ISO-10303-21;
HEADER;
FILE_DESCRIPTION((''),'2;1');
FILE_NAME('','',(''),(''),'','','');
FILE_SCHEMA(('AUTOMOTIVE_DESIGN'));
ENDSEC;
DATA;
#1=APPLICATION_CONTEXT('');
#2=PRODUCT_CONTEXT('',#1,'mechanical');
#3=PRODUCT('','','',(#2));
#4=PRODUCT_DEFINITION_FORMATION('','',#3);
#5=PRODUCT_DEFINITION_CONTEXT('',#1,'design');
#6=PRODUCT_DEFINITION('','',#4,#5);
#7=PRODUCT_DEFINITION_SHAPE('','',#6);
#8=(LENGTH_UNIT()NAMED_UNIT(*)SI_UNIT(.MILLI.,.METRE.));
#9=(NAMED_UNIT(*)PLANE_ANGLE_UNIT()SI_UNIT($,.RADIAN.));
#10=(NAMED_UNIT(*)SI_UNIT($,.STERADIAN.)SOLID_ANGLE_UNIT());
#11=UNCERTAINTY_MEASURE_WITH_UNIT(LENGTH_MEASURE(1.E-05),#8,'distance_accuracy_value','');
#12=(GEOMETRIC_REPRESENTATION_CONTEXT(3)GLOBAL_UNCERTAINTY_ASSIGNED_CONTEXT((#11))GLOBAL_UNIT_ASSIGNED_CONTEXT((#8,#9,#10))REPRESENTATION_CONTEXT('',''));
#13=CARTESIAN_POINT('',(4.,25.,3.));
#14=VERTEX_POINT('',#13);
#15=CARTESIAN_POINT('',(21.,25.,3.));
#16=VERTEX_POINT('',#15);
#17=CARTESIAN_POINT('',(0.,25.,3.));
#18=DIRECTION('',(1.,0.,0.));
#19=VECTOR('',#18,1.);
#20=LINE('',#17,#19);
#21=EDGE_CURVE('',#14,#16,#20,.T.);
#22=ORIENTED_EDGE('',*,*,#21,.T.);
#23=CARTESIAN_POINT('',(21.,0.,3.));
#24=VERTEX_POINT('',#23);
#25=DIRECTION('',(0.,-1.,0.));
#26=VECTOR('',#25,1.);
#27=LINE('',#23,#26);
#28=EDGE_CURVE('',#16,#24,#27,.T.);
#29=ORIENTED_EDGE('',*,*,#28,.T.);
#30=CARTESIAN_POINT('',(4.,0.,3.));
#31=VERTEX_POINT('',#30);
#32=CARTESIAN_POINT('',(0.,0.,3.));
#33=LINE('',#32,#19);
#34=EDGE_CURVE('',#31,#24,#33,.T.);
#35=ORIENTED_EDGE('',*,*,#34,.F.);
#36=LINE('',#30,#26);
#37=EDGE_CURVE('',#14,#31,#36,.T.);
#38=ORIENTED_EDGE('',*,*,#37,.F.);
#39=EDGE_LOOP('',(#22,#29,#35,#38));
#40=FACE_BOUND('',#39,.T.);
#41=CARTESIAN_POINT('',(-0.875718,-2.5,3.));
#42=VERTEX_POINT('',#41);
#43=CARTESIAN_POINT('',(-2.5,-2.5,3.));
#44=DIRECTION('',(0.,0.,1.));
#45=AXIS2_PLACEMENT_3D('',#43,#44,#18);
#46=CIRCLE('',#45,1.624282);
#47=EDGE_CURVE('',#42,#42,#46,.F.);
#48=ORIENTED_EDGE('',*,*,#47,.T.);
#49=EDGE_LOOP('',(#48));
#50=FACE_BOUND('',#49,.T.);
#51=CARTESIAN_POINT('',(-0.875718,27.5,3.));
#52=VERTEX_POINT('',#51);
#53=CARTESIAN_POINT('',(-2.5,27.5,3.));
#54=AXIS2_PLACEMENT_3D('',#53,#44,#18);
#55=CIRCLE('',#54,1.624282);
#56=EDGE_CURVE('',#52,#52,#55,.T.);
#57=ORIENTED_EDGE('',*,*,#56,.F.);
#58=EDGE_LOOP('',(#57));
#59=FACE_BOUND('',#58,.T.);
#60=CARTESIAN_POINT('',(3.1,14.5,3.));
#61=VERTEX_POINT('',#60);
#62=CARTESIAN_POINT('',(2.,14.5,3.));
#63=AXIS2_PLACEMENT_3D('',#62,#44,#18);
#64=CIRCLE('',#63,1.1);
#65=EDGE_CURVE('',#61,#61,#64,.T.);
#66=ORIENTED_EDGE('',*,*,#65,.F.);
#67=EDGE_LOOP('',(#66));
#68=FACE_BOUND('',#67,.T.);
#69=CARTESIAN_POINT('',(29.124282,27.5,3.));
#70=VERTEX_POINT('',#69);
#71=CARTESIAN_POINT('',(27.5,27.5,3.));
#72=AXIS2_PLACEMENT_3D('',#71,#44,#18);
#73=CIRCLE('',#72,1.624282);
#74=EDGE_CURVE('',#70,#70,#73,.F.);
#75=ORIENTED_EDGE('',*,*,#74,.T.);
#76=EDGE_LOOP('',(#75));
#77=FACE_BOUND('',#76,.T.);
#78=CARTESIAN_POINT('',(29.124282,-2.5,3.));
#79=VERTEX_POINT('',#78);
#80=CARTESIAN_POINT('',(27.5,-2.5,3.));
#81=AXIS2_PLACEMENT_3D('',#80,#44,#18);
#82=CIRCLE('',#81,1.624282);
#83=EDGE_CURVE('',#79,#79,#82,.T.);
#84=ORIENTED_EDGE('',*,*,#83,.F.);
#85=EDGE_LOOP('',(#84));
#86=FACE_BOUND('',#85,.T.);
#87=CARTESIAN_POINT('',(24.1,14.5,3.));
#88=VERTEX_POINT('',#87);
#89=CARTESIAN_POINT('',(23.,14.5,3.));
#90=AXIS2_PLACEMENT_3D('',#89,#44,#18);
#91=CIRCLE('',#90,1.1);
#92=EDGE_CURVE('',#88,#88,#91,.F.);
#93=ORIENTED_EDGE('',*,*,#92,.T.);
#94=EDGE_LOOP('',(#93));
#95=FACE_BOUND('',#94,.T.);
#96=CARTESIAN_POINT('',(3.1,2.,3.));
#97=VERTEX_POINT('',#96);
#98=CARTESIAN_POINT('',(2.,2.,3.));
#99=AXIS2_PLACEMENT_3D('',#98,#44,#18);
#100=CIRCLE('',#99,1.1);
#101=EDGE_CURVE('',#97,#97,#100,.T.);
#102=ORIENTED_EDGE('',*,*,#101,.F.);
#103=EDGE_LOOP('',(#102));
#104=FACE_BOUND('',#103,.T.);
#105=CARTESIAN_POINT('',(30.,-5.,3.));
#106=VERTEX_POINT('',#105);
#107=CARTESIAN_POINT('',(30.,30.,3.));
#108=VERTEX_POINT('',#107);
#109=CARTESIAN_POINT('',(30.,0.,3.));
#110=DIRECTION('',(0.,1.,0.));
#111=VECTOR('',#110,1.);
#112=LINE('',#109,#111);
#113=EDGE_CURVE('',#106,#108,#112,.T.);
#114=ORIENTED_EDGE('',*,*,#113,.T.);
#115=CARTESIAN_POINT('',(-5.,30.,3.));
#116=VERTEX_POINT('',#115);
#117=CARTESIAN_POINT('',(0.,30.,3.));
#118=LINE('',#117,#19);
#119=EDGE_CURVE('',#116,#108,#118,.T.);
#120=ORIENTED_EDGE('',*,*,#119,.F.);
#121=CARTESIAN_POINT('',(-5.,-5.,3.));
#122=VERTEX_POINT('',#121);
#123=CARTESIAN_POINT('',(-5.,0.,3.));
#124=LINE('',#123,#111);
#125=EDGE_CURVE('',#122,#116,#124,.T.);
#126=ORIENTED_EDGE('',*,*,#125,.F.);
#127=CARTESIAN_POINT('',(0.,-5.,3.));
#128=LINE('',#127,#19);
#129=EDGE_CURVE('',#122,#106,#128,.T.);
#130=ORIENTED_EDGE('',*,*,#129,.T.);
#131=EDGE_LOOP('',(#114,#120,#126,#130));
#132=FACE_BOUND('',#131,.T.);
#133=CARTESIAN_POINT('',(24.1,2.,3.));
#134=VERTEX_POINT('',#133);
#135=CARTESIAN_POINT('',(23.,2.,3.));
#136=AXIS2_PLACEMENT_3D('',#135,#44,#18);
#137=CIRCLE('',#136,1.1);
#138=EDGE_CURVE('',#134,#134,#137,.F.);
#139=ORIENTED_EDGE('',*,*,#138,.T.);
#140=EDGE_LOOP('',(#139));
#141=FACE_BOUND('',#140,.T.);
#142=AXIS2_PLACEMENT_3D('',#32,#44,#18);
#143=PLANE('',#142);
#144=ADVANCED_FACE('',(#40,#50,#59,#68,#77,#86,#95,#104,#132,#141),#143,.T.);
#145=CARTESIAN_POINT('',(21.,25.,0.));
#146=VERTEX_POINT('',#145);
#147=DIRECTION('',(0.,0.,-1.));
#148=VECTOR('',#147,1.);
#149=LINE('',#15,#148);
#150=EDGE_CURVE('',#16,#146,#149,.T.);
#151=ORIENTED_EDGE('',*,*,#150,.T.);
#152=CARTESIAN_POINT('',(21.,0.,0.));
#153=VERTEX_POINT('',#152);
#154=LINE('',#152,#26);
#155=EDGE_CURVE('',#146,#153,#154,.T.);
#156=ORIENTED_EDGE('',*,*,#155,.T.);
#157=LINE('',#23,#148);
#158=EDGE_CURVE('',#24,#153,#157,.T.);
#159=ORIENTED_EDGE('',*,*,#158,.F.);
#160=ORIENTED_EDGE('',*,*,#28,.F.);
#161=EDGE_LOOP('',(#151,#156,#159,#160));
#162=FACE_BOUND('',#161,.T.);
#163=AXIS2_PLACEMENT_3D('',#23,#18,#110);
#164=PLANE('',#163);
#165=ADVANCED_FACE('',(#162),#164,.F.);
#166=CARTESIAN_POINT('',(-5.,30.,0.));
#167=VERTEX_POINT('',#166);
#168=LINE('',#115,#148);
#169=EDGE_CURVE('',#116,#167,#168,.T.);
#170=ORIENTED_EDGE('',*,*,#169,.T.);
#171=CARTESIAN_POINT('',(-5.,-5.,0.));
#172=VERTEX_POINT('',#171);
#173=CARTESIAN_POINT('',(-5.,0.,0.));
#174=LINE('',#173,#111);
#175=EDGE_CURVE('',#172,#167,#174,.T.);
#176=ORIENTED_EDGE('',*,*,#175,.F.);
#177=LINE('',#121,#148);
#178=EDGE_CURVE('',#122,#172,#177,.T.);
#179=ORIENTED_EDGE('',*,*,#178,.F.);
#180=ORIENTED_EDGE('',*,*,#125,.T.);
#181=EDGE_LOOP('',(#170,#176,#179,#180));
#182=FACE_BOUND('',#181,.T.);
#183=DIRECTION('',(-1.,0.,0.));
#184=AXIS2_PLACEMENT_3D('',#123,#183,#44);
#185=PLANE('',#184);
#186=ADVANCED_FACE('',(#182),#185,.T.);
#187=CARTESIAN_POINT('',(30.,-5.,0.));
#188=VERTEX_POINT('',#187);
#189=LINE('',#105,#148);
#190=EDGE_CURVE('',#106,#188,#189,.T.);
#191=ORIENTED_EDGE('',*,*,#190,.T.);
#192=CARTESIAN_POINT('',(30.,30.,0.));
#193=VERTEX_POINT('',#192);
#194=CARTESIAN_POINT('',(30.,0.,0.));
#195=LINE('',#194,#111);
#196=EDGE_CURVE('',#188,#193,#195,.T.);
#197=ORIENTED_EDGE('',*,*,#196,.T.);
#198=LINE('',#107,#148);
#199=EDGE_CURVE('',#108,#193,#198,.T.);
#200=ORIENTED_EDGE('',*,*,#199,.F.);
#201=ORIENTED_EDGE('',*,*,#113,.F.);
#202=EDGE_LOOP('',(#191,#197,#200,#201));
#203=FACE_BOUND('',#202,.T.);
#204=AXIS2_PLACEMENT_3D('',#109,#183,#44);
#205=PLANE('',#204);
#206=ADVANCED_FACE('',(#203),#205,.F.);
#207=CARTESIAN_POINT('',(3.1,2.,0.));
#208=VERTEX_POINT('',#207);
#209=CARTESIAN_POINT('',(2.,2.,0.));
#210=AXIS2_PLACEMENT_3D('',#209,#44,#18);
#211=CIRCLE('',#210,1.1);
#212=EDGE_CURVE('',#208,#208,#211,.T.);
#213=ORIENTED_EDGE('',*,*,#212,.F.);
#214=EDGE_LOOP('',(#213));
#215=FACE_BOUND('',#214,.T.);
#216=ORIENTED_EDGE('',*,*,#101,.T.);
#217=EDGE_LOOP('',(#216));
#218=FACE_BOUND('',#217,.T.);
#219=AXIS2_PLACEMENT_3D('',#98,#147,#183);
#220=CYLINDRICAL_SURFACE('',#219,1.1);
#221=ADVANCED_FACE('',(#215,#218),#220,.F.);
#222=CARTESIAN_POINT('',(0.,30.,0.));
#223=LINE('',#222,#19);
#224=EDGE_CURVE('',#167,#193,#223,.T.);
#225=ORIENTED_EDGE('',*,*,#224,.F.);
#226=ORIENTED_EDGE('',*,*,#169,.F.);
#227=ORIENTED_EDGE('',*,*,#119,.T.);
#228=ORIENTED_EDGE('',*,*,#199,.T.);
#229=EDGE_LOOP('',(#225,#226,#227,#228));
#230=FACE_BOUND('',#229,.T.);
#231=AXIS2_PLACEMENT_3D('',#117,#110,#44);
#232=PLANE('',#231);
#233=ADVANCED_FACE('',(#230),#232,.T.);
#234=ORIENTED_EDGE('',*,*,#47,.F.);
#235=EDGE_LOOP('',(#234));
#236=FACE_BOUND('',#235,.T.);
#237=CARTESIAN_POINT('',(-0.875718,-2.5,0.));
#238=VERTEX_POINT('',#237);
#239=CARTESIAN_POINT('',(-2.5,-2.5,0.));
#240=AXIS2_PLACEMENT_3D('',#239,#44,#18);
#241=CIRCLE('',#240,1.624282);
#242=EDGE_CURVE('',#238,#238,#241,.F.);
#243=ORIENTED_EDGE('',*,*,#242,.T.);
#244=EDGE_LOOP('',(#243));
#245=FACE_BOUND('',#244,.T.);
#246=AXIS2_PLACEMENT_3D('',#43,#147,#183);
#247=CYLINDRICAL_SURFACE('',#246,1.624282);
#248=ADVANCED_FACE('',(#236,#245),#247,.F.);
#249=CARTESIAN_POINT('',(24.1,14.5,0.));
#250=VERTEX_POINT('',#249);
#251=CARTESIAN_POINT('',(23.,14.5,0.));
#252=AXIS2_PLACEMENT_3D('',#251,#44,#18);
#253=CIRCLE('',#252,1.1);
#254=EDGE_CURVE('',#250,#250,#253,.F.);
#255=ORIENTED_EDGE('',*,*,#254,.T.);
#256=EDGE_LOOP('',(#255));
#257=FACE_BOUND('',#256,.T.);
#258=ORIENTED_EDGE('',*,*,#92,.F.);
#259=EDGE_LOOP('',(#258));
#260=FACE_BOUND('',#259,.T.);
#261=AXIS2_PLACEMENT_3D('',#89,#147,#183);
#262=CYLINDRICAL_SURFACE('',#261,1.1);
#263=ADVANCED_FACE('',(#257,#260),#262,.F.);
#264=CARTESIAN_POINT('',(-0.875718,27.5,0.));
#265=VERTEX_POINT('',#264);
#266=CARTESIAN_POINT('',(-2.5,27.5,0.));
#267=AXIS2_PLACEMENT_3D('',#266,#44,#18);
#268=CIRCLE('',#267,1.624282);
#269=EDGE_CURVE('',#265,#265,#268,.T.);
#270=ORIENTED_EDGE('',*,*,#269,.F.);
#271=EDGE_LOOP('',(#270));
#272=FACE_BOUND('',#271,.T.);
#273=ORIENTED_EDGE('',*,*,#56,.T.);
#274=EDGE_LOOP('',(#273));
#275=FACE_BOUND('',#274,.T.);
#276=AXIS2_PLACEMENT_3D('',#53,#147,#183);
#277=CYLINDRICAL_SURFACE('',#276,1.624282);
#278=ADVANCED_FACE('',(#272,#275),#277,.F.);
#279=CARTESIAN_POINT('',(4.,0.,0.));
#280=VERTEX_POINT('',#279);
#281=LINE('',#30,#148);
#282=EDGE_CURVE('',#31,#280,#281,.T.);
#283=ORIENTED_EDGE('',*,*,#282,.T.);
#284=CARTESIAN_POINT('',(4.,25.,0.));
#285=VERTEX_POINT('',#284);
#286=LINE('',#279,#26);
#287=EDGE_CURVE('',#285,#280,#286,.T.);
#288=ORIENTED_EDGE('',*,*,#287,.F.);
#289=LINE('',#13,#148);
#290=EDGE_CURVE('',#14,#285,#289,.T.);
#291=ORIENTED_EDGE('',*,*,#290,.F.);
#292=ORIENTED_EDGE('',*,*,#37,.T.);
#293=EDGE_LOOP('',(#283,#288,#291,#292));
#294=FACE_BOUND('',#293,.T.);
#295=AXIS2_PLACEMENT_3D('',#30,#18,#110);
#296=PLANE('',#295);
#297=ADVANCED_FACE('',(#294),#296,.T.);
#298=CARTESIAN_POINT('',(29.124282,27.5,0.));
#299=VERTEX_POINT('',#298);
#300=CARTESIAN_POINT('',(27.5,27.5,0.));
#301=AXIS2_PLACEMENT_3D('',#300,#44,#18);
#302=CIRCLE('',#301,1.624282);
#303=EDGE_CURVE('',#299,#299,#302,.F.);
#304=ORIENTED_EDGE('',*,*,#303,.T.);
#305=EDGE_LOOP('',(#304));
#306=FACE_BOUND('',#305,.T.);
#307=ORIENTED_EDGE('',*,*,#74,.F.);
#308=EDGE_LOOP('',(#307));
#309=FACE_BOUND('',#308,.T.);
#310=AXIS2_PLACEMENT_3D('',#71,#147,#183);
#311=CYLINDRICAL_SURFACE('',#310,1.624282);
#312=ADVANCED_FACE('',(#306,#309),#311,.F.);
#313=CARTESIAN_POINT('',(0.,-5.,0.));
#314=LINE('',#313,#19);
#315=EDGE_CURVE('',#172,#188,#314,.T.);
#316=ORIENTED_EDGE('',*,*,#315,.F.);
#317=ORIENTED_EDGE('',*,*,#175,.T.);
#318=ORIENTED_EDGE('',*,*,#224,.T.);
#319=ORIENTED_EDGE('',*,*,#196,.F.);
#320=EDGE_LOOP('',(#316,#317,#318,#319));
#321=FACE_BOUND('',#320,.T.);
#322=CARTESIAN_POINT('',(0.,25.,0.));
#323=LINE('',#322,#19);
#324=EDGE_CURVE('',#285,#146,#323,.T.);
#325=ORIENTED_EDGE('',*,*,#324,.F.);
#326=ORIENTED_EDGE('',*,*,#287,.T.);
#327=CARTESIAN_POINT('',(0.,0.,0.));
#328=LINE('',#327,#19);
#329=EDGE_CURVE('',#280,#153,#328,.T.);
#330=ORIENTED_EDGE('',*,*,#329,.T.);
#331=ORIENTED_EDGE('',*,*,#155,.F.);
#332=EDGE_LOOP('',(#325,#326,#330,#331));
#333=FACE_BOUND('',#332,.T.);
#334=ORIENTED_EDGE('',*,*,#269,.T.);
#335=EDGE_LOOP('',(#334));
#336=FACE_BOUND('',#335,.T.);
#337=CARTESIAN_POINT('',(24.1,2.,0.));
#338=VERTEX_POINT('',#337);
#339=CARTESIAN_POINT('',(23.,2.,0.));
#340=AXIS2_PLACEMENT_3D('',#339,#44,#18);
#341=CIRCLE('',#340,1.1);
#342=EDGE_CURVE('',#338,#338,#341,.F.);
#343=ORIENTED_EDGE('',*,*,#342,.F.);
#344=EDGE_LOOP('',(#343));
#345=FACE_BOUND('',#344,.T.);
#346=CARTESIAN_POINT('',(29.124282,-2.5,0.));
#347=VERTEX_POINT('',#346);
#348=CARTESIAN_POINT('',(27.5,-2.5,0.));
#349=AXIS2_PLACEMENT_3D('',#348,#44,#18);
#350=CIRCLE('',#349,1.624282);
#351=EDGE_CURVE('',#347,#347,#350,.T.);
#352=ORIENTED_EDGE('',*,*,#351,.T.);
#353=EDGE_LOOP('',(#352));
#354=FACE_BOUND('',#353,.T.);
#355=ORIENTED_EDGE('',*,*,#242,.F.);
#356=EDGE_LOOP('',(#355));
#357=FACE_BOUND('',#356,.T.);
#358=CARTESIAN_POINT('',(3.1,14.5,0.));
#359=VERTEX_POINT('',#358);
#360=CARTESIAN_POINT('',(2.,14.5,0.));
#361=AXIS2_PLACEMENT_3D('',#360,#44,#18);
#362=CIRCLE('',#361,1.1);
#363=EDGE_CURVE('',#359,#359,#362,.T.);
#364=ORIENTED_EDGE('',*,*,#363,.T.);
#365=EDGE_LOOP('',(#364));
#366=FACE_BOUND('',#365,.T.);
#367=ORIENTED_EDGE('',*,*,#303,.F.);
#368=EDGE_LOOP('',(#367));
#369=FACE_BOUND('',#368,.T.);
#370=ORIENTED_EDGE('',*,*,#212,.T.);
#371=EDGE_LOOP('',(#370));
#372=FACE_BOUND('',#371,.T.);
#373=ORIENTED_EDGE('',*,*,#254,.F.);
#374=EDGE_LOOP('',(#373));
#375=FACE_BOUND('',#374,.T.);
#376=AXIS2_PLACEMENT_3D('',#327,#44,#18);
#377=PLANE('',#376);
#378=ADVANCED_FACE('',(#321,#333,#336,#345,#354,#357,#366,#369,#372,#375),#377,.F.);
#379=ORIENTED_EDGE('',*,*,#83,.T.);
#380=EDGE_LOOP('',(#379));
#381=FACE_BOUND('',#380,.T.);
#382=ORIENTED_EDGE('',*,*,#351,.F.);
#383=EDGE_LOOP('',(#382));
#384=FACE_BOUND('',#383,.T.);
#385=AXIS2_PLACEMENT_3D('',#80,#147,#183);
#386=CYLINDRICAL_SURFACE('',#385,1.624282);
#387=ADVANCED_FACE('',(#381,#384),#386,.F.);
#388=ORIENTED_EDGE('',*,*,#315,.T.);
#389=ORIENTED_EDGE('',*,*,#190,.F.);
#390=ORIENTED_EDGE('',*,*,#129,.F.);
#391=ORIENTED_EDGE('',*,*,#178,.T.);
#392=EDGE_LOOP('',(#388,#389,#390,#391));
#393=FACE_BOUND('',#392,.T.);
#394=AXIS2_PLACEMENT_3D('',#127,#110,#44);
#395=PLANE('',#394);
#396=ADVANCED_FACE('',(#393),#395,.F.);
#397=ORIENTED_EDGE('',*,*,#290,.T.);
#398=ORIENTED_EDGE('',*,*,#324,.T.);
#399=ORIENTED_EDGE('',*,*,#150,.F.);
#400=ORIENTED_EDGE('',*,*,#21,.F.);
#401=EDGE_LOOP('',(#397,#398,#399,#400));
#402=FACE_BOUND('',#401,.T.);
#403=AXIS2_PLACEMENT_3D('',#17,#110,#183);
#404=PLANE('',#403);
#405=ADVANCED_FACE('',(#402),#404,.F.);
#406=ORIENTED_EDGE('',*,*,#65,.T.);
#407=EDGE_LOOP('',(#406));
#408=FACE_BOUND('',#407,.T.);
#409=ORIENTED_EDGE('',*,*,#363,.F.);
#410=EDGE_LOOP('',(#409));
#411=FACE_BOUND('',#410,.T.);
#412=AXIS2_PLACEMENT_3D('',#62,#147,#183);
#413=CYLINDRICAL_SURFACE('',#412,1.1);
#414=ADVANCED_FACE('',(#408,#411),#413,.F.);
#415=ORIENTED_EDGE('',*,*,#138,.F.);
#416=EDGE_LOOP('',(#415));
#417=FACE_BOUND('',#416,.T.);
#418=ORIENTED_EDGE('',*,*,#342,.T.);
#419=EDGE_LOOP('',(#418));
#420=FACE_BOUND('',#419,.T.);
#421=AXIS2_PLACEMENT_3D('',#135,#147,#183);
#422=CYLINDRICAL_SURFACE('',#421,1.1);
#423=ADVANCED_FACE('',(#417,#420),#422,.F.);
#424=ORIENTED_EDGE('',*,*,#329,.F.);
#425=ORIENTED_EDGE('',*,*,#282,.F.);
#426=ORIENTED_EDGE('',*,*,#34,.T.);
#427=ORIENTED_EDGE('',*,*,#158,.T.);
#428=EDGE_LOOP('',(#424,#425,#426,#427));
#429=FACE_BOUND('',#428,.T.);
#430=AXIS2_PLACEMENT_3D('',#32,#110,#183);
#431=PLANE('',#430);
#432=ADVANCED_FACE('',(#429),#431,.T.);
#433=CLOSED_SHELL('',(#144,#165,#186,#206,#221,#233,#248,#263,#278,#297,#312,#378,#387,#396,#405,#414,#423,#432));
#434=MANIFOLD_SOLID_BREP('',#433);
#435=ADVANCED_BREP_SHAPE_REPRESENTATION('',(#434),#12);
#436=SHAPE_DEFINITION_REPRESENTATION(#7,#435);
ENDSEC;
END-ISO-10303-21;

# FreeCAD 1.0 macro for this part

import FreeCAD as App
import Part
import Sketcher

V = App.Vector

doc = App.newDocument("Part")
body = doc.addObject("PartDesign::Body", "Body")

sketch1 = body.newObject("Sketcher::SketchObject", "Sketch")
sketch1.AttachmentSupport = (doc.getObject("XY_Plane"), [""])
sketch1.MapMode = "FlatFace"
sketch1.addGeometry([
    Part.LineSegment(V(-5, 30, 0), V(-5, -5, 0)),
    Part.LineSegment(V(-5, -5, 0), V(30, -5, 0)),
    Part.LineSegment(V(30, -5, 0), V(30, 30, 0)),
    Part.LineSegment(V(30, 30, 0), V(-5, 30, 0)),
    Part.Circle(V(-2.5, -2.5, 0), V(0, 0, 1), 1.6),
    Part.Circle(V(2, 2, 0), V(0, 0, 1), 1.1),
    Part.Circle(V(27.5, -2.5, 0), V(0, 0, 1), 1.6),
    Part.Circle(V(23, 2, 0), V(0, 0, 1), 1.1),
    Part.Circle(V(2, 14.5, 0), V(0, 0, 1), 1.1),
    Part.Circle(V(-2.5, 27.5, 0), V(0, 0, 1), 1.6),
    Part.LineSegment(V(21, 0, 0), V(4, 0, 0)),
    Part.LineSegment(V(4, 0, 0), V(4, 25, 0)),
    Part.LineSegment(V(4, 25, 0), V(21, 25, 0)),
    Part.LineSegment(V(21, 25, 0), V(21, 0, 0)),
    Part.Circle(V(23, 14.5, 0), V(0, 0, 1), 1.1),
    Part.Circle(V(27.5, 27.5, 0), V(0, 0, 1), 1.6),
], False)
sketch1.addConstraint([
    Sketcher.Constraint("Coincident", 0, 2, 1, 1),
    Sketcher.Constraint("Coincident", 1, 2, 2, 1),
    Sketcher.Constraint("Coincident", 2, 2, 3, 1),
    Sketcher.Constraint("Coincident", 3, 2, 0, 1),
    Sketcher.Constraint("Coincident", 10, 2, 11, 1),
    Sketcher.Constraint("Coincident", 11, 2, 12, 1),
    Sketcher.Constraint("Coincident", 12, 2, 13, 1),
    Sketcher.Constraint("Coincident", 13, 2, 10, 1),
    Sketcher.Constraint("Vertical", 0),
    Sketcher.Constraint("Horizontal", 1),
    Sketcher.Constraint("Vertical", 2),
    Sketcher.Constraint("Horizontal", 3),
    Sketcher.Constraint("Horizontal", 10),
    Sketcher.Constraint("Vertical", 11),
    Sketcher.Constraint("Horizontal", 12),
    Sketcher.Constraint("Vertical", 13),
    Sketcher.Constraint("Equal", 4, 6),
    Sketcher.Constraint("Equal", 5, 7),
    Sketcher.Constraint("Equal", 7, 8),
    Sketcher.Constraint("Equal", 6, 9),
    Sketcher.Constraint("Equal", 8, 14),
    Sketcher.Constraint("Equal", 9, 15),
    Sketcher.Constraint("PointOnObject", 10, 2, -1),
    Sketcher.Constraint("Horizontal", 4, 3, 6, 3),
    Sketcher.Constraint("Horizontal", 5, 3, 7, 3),
    Sketcher.Constraint("Horizontal", 8, 3, 14, 3),
    Sketcher.Constraint("Horizontal", 9, 3, 15, 3),
    Sketcher.Constraint("Vertical", 5, 3, 8, 3),
    Sketcher.Constraint("Vertical", 4, 3, 9, 3),
    Sketcher.Constraint("Vertical", 7, 3, 14, 3),
    Sketcher.Constraint("Vertical", 6, 3, 15, 3),
    Sketcher.Constraint("Equal", 3, 0),
    Sketcher.Constraint("Diameter", 5, 2.2),
    Sketcher.Constraint("DistanceX", 1, 1, 1, 2, 35.0),
    Sketcher.Constraint("DistanceX", 10, 2, 10, 1, 17.0),
    Sketcher.Constraint("DistanceY", 11, 1, 11, 2, 25.0),
    Sketcher.Constraint("DistanceX", -1, 1, 5, 3, 2.0),
    Sketcher.Constraint("DistanceY", -1, 1, 5, 3, 2.0),
    Sketcher.Constraint("DistanceX", -1, 1, 7, 3, 23.0),
    Sketcher.Constraint("DistanceX", 0, 2, -1, 1, 5.0),
    Sketcher.Constraint("DistanceY", 0, 2, -1, 1, 5.0),
    Sketcher.Constraint("DistanceX", -1, 1, 10, 2, 4.0),
    Sketcher.Constraint("DistanceX", 4, 3, 6, 3, 30.0),
    Sketcher.Constraint("DistanceY", 4, 3, 8, 3, 17.0),
    Sketcher.Constraint("DistanceY", 8, 3, 9, 3, 13.0),
    Sketcher.Constraint("DistanceX", 4, 3, -1, 1, 2.5),
    Sketcher.Constraint("DistanceY", 4, 3, -1, 1, 2.5),
    Sketcher.Constraint("Diameter", 4, 3.248563),
])
pad1 = body.newObject("PartDesign::Pad", "Pad")
pad1.Profile = sketch1
pad1.Length = 3

doc.recompute()
